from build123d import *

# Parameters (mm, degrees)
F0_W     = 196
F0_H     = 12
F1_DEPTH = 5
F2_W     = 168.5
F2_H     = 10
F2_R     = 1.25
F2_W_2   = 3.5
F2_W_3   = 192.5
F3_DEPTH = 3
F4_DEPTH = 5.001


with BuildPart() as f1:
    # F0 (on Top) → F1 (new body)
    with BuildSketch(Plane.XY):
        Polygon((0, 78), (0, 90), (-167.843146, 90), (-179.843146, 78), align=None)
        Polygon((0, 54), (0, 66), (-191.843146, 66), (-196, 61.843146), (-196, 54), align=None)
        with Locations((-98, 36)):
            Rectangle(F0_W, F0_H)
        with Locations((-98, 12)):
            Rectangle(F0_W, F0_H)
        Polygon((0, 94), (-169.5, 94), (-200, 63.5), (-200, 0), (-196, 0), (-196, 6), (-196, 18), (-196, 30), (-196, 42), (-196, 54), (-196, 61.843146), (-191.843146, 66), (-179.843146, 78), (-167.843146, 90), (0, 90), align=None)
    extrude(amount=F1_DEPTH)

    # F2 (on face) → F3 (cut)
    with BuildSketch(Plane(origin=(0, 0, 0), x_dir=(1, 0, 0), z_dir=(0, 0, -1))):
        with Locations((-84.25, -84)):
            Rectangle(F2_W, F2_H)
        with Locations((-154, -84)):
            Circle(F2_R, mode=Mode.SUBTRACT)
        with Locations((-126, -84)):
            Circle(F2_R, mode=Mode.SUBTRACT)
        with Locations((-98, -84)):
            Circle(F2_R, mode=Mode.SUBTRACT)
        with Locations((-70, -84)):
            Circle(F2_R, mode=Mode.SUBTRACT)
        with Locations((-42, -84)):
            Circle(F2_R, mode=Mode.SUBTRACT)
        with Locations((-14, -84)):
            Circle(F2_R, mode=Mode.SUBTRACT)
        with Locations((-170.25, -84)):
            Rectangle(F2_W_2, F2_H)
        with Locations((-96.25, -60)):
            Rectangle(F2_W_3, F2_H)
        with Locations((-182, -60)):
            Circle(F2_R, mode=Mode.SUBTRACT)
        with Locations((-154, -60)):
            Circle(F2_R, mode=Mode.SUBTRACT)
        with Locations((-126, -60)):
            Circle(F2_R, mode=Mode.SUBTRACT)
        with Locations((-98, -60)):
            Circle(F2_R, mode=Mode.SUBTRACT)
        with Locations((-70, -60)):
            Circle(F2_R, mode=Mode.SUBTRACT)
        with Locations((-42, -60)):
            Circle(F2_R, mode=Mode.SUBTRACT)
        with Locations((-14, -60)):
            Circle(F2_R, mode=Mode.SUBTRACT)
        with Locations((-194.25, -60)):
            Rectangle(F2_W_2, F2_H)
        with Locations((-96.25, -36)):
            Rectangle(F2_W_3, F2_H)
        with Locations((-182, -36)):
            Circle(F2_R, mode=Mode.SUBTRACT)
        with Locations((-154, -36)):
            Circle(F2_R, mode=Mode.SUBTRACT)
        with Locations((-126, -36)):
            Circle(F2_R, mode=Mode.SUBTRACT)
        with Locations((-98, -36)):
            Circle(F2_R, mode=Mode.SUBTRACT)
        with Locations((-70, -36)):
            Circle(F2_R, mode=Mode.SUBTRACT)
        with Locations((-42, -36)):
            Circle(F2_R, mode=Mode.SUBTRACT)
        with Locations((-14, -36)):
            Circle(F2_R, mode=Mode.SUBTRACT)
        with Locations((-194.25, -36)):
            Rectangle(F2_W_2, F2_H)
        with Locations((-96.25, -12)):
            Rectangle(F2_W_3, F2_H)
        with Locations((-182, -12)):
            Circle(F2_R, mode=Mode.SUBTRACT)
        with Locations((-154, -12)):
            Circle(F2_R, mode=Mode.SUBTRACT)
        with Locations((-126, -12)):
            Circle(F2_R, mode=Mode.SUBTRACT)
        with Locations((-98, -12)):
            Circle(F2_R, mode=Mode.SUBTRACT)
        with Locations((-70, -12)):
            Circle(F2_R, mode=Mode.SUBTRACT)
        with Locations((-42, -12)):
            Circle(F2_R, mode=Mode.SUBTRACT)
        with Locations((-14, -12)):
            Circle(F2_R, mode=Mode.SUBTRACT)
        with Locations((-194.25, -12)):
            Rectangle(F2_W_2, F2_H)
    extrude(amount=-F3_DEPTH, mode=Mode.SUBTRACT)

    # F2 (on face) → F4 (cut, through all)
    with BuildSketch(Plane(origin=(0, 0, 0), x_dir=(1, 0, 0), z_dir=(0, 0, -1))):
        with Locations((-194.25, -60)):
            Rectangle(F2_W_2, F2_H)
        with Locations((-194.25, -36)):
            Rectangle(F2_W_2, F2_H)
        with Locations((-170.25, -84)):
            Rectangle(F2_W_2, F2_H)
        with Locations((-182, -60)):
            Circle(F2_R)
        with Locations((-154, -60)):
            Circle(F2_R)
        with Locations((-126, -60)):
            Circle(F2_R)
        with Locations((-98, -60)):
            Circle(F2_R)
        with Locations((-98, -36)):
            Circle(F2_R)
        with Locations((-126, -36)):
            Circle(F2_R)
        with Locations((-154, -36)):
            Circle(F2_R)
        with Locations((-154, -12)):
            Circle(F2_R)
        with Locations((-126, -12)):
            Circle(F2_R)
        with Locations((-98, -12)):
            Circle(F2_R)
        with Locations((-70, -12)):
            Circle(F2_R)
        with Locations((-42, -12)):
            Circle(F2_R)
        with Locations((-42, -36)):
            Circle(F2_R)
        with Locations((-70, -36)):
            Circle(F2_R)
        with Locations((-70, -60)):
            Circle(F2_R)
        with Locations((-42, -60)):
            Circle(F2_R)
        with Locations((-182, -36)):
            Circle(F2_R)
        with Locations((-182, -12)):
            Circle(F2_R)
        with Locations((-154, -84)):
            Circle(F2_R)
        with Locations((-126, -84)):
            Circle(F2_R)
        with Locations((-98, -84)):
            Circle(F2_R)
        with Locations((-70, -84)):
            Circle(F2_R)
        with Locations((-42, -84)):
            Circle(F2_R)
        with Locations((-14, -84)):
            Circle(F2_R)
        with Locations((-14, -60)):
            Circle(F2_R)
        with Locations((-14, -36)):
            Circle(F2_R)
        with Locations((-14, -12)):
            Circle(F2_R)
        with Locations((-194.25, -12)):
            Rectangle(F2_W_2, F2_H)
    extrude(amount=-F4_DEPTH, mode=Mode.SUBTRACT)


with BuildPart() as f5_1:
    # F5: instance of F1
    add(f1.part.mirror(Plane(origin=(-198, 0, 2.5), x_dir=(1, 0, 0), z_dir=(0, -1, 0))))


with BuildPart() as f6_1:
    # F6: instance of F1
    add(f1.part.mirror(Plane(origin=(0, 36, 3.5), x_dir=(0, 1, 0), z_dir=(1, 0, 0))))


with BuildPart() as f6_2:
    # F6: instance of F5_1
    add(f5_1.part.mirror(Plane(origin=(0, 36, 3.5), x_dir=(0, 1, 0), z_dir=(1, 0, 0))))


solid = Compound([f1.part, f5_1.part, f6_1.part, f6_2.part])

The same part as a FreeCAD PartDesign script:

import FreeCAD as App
import Part
import Sketcher

V = App.Vector
Q = App.Units.Quantity

doc = App.newDocument("Part")
body = doc.addObject("PartDesign::Body", "Body")

sketch1 = body.newObject("Sketcher::SketchObject", "Sketch")
sketch1.AttachmentSupport = (doc.getObject("XY_Plane"), [""])
sketch1.MapMode = "FlatFace"
sketch1.addGeometry(Part.LineSegment(V(0, 78, 0), V(0, 94, 0)), False)
sketch1.addGeometry(Part.LineSegment(V(0, 94, 0), V(-169.5, 94, 0)), False)
sketch1.addGeometry(Part.LineSegment(V(-169.5, 94, 0), V(-200, 63.5, 0)), False)
sketch1.addGeometry(Part.LineSegment(V(-200, 63.5, 0), V(-200, 0, 0)), False)
sketch1.addGeometry(Part.LineSegment(V(-200, 0, 0), V(-196, 0, 0)), False)
sketch1.addGeometry(Part.LineSegment(V(-196, 0, 0), V(-196, 6, 0)), False)
sketch1.addGeometry(Part.LineSegment(V(-196, 6, 0), V(0, 6, 0)), False)
sketch1.addGeometry(Part.LineSegment(V(0, 6, 0), V(0, 18, 0)), False)
sketch1.addGeometry(Part.LineSegment(V(0, 18, 0), V(-196, 18, 0)), False)
sketch1.addGeometry(Part.LineSegment(V(-196, 18, 0), V(-196, 30, 0)), False)
sketch1.addGeometry(Part.LineSegment(V(-196, 30, 0), V(0, 30, 0)), False)
sketch1.addGeometry(Part.LineSegment(V(0, 30, 0), V(0, 42, 0)), False)
sketch1.addGeometry(Part.LineSegment(V(0, 42, 0), V(-196, 42, 0)), False)
sketch1.addGeometry(Part.LineSegment(V(-196, 42, 0), V(-196, 54, 0)), False)
sketch1.addGeometry(Part.LineSegment(V(-196, 54, 0), V(0, 54, 0)), False)
sketch1.addGeometry(Part.LineSegment(V(0, 54, 0), V(0, 66, 0)), False)
sketch1.addGeometry(Part.LineSegment(V(0, 66, 0), V(-191.8, 66, 0)), False)
sketch1.addGeometry(Part.LineSegment(V(-191.8, 66, 0), V(-179.8, 78, 0)), False)
sketch1.addGeometry(Part.LineSegment(V(-179.8, 78, 0), V(0, 78, 0)), False)
sketch1.addConstraint(Sketcher.Constraint("Coincident", 0, 2, 1, 1))
sketch1.addConstraint(Sketcher.Constraint("Coincident", 1, 2, 2, 1))
sketch1.addConstraint(Sketcher.Constraint("Coincident", 2, 2, 3, 1))
sketch1.addConstraint(Sketcher.Constraint("Coincident", 3, 2, 4, 1))
sketch1.addConstraint(Sketcher.Constraint("Coincident", 4, 2, 5, 1))
sketch1.addConstraint(Sketcher.Constraint("Coincident", 5, 2, 6, 1))
sketch1.addConstraint(Sketcher.Constraint("Coincident", 6, 2, 7, 1))
sketch1.addConstraint(Sketcher.Constraint("Coincident", 7, 2, 8, 1))
sketch1.addConstraint(Sketcher.Constraint("Coincident", 8, 2, 9, 1))
sketch1.addConstraint(Sketcher.Constraint("Coincident", 9, 2, 10, 1))
sketch1.addConstraint(Sketcher.Constraint("Coincident", 10, 2, 11, 1))
sketch1.addConstraint(Sketcher.Constraint("Coincident", 11, 2, 12, 1))
sketch1.addConstraint(Sketcher.Constraint("Coincident", 12, 2, 13, 1))
sketch1.addConstraint(Sketcher.Constraint("Coincident", 13, 2, 14, 1))
sketch1.addConstraint(Sketcher.Constraint("Coincident", 14, 2, 15, 1))
sketch1.addConstraint(Sketcher.Constraint("Coincident", 15, 2, 16, 1))
sketch1.addConstraint(Sketcher.Constraint("Coincident", 16, 2, 17, 1))
sketch1.addConstraint(Sketcher.Constraint("Coincident", 17, 2, 18, 1))
sketch1.addConstraint(Sketcher.Constraint("Coincident", 18, 2, 0, 1))
sketch1.addConstraint(Sketcher.Constraint("Vertical", 0))
sketch1.addConstraint(Sketcher.Constraint("Horizontal", 1))
sketch1.addConstraint(Sketcher.Constraint("Vertical", 3))
sketch1.addConstraint(Sketcher.Constraint("Horizontal", 4))
sketch1.addConstraint(Sketcher.Constraint("Vertical", 5))
sketch1.addConstraint(Sketcher.Constraint("Horizontal", 6))
sketch1.addConstraint(Sketcher.Constraint("Vertical", 7))
sketch1.addConstraint(Sketcher.Constraint("Horizontal", 8))
sketch1.addConstraint(Sketcher.Constraint("Vertical", 9))
sketch1.addConstraint(Sketcher.Constraint("Horizontal", 10))
sketch1.addConstraint(Sketcher.Constraint("Vertical", 11))
sketch1.addConstraint(Sketcher.Constraint("Horizontal", 12))
sketch1.addConstraint(Sketcher.Constraint("Vertical", 13))
sketch1.addConstraint(Sketcher.Constraint("Horizontal", 14))
sketch1.addConstraint(Sketcher.Constraint("Vertical", 15))
sketch1.addConstraint(Sketcher.Constraint("Horizontal", 16))
sketch1.addConstraint(Sketcher.Constraint("Horizontal", 18))
sketch1.addConstraint(Sketcher.Constraint("PointOnObject", 0, 2, -2))
sketch1.addConstraint(Sketcher.Constraint("PointOnObject", 3, 2, -1))
sketch1.addConstraint(Sketcher.Constraint("PointOnObject", 6, 2, -2))
sketch1.addConstraint(Sketcher.Constraint("PointOnObject", 10, 2, -2))
sketch1.addConstraint(Sketcher.Constraint("PointOnObject", 14, 2, -2))
sketch1.addConstraint(Sketcher.Constraint("Parallel", 2, 17))
sketch1.addConstraint(Sketcher.Constraint("Vertical", 5, 2, 8, 2))
sketch1.addConstraint(Sketcher.Constraint("Vertical", 9, 2, 12, 2))
sketch1.addConstraint(Sketcher.Constraint("Equal", 7, 9))
sketch1.addConstraint(Sketcher.Constraint("Equal", 9, 11))
sketch1.addConstraint(Sketcher.Constraint("Equal", 11, 13))
sketch1.addConstraint(Sketcher.Constraint("Equal", 13, 15))
sketch1.addConstraint(Sketcher.Constraint("DistanceX", 4, 1, 4, 2, 4.0))
sketch1.addConstraint(Sketcher.Constraint("DistanceX", 6, 1, 6, 2, 196.0))
sketch1.addConstraint(Sketcher.Constraint("DistanceY", 0, 1, 0, 2, 16.0))
sketch1.addConstraint(Sketcher.Constraint("DistanceY", 5, 1, 5, 2, 6.0))
sketch1.addConstraint(Sketcher.Constraint("DistanceY", 7, 1, 7, 2, 12.0))
sketch1.addConstraint(Sketcher.Constraint("Angle", 2, Q("-135 deg")))
sketch1.addConstraint(Sketcher.Constraint("DistanceX", 1, 2, 1, 1, 169.5))
sketch1.addConstraint(Sketcher.Constraint("DistanceY", 3, 2, 3, 1, 63.5))
sketch1.addConstraint(Sketcher.Constraint("DistanceX", 16, 2, 16, 1, 191.843146))
pad1 = body.newObject("PartDesign::Pad", "Pad")
pad1.Profile = sketch1
pad1.Length = 5

sketch2 = body.newObject("Sketcher::SketchObject", "Sketch001")
sketch2.AttachmentSupport = (doc.getObject("XY_Plane"), [""])
sketch2.MapMode = "FlatFace"
sketch2.addGeometry(Part.LineSegment(V(0, 89, 0), V(0, 79, 0)), False)
sketch2.addGeometry(Part.LineSegment(V(0, 79, 0), V(-172, 79, 0)), False)
sketch2.addGeometry(Part.LineSegment(V(-172, 79, 0), V(-172, 89, 0)), False)
sketch2.addGeometry(Part.LineSegment(V(-172, 89, 0), V(0, 89, 0)), False)
sketch2.addGeometry(Part.Circle(V(-154, 84, 0), V(0, 0, 1), 1.2), False)
sketch2.addGeometry(Part.Circle(V(-126, 84, 0), V(0, 0, 1), 1.2), False)
sketch2.addGeometry(Part.Circle(V(-98, 84, 0), V(0, 0, 1), 1.2), False)
sketch2.addGeometry(Part.Circle(V(-70, 84, 0), V(0, 0, 1), 1.2), False)
sketch2.addGeometry(Part.Circle(V(-42, 84, 0), V(0, 0, 1), 1.2), False)
sketch2.addGeometry(Part.Circle(V(-14, 84, 0), V(0, 0, 1), 1.2), False)
sketch2.addGeometry(Part.LineSegment(V(0, 65, 0), V(0, 55, 0)), False)
sketch2.addGeometry(Part.LineSegment(V(0, 55, 0), V(-196, 55, 0)), False)
sketch2.addGeometry(Part.LineSegment(V(-196, 55, 0), V(-196, 65, 0)), False)
sketch2.addGeometry(Part.LineSegment(V(-196, 65, 0), V(0, 65, 0)), False)
sketch2.addGeometry(Part.Circle(V(-182, 60, 0), V(0, 0, 1), 1.2), False)
sketch2.addGeometry(Part.Circle(V(-154, 60, 0), V(0, 0, 1), 1.2), False)
sketch2.addGeometry(Part.Circle(V(-126, 60, 0), V(0, 0, 1), 1.2), False)
sketch2.addGeometry(Part.Circle(V(-98, 60, 0), V(0, 0, 1), 1.2), False)
sketch2.addGeometry(Part.Circle(V(-70, 60, 0), V(0, 0, 1), 1.2), False)
sketch2.addGeometry(Part.Circle(V(-42, 60, 0), V(0, 0, 1), 1.2), False)
sketch2.addGeometry(Part.Circle(V(-14, 60, 0), V(0, 0, 1), 1.2), False)
sketch2.addGeometry(Part.LineSegment(V(0, 41, 0), V(0, 31, 0)), False)
sketch2.addGeometry(Part.LineSegment(V(0, 31, 0), V(-196, 31, 0)), False)
sketch2.addGeometry(Part.LineSegment(V(-196, 31, 0), V(-196, 41, 0)), False)
sketch2.addGeometry(Part.LineSegment(V(-196, 41, 0), V(0, 41, 0)), False)
sketch2.addGeometry(Part.Circle(V(-182, 36, 0), V(0, 0, 1), 1.2), False)
sketch2.addGeometry(Part.Circle(V(-154, 36, 0), V(0, 0, 1), 1.2), False)
sketch2.addGeometry(Part.Circle(V(-126, 36, 0), V(0, 0, 1), 1.2), False)
sketch2.addGeometry(Part.Circle(V(-98, 36, 0), V(0, 0, 1), 1.2), False)
sketch2.addGeometry(Part.Circle(V(-70, 36, 0), V(0, 0, 1), 1.2), False)
sketch2.addGeometry(Part.Circle(V(-42, 36, 0), V(0, 0, 1), 1.2), False)
sketch2.addGeometry(Part.Circle(V(-14, 36, 0), V(0, 0, 1), 1.2), False)
sketch2.addGeometry(Part.LineSegment(V(0, 17, 0), V(0, 7, 0)), False)
sketch2.addGeometry(Part.LineSegment(V(0, 7, 0), V(-196, 7, 0)), False)
sketch2.addGeometry(Part.LineSegment(V(-196, 7, 0), V(-196, 17, 0)), False)
sketch2.addGeometry(Part.LineSegment(V(-196, 17, 0), V(0, 17, 0)), False)
sketch2.addGeometry(Part.Circle(V(-182, 12, 0), V(0, 0, 1), 1.2), False)
sketch2.addGeometry(Part.Circle(V(-154, 12, 0), V(0, 0, 1), 1.2), False)
sketch2.addGeometry(Part.Circle(V(-126, 12, 0), V(0, 0, 1), 1.2), False)
sketch2.addGeometry(Part.Circle(V(-98, 12, 0), V(0, 0, 1), 1.2), False)
sketch2.addGeometry(Part.Circle(V(-70, 12, 0), V(0, 0, 1), 1.2), False)
sketch2.addGeometry(Part.Circle(V(-42, 12, 0), V(0, 0, 1), 1.2), False)
sketch2.addGeometry(Part.Circle(V(-14, 12, 0), V(0, 0, 1), 1.2), False)
sketch2.addConstraint(Sketcher.Constraint("Coincident", 0, 2, 1, 1))
sketch2.addConstraint(Sketcher.Constraint("Coincident", 1, 2, 2, 1))
sketch2.addConstraint(Sketcher.Constraint("Coincident", 2, 2, 3, 1))
sketch2.addConstraint(Sketcher.Constraint("Coincident", 3, 2, 0, 1))
sketch2.addConstraint(Sketcher.Constraint("Coincident", 10, 2, 11, 1))
sketch2.addConstraint(Sketcher.Constraint("Coincident", 11, 2, 12, 1))
sketch2.addConstraint(Sketcher.Constraint("Coincident", 12, 2, 13, 1))
sketch2.addConstraint(Sketcher.Constraint("Coincident", 13, 2, 10, 1))
sketch2.addConstraint(Sketcher.Constraint("Coincident", 21, 2, 22, 1))
sketch2.addConstraint(Sketcher.Constraint("Coincident", 22, 2, 23, 1))
sketch2.addConstraint(Sketcher.Constraint("Coincident", 23, 2, 24, 1))
sketch2.addConstraint(Sketcher.Constraint("Coincident", 24, 2, 21, 1))
sketch2.addConstraint(Sketcher.Constraint("Coincident", 32, 2, 33, 1))
sketch2.addConstraint(Sketcher.Constraint("Coincident", 33, 2, 34, 1))
sketch2.addConstraint(Sketcher.Constraint("Coincident", 34, 2, 35, 1))
sketch2.addConstraint(Sketcher.Constraint("Coincident", 35, 2, 32, 1))
sketch2.addConstraint(Sketcher.Constraint("Vertical", 0))
sketch2.addConstraint(Sketcher.Constraint("Horizontal", 1))
sketch2.addConstraint(Sketcher.Constraint("Vertical", 2))
sketch2.addConstraint(Sketcher.Constraint("Horizontal", 3))
sketch2.addConstraint(Sketcher.Constraint("Vertical", 10))
sketch2.addConstraint(Sketcher.Constraint("Horizontal", 11))
sketch2.addConstraint(Sketcher.Constraint("Vertical", 12))
sketch2.addConstraint(Sketcher.Constraint("Horizontal", 13))
sketch2.addConstraint(Sketcher.Constraint("Vertical", 21))
sketch2.addConstraint(Sketcher.Constraint("Horizontal", 22))
sketch2.addConstraint(Sketcher.Constraint("Vertical", 23))
sketch2.addConstraint(Sketcher.Constraint("Horizontal", 24))
sketch2.addConstraint(Sketcher.Constraint("Vertical", 32))
sketch2.addConstraint(Sketcher.Constraint("Horizontal", 33))
sketch2.addConstraint(Sketcher.Constraint("Vertical", 34))
sketch2.addConstraint(Sketcher.Constraint("Horizontal", 35))
sketch2.addConstraint(Sketcher.Constraint("Equal", 4, 5))
sketch2.addConstraint(Sketcher.Constraint("Equal", 5, 6))
sketch2.addConstraint(Sketcher.Constraint("Equal", 6, 7))
sketch2.addConstraint(Sketcher.Constraint("Equal", 7, 8))
sketch2.addConstraint(Sketcher.Constraint("Equal", 8, 9))
sketch2.addConstraint(Sketcher.Constraint("Equal", 9, 14))
sketch2.addConstraint(Sketcher.Constraint("Equal", 14, 15))
sketch2.addConstraint(Sketcher.Constraint("Equal", 15, 16))
sketch2.addConstraint(Sketcher.Constraint("Equal", 16, 17))
sketch2.addConstraint(Sketcher.Constraint("Equal", 17, 18))
sketch2.addConstraint(Sketcher.Constraint("Equal", 18, 19))
sketch2.addConstraint(Sketcher.Constraint("Equal", 19, 20))
sketch2.addConstraint(Sketcher.Constraint("Equal", 20, 25))
sketch2.addConstraint(Sketcher.Constraint("Equal", 25, 26))
sketch2.addConstraint(Sketcher.Constraint("Equal", 26, 27))
sketch2.addConstraint(Sketcher.Constraint("Equal", 27, 28))
sketch2.addConstraint(Sketcher.Constraint("Equal", 28, 29))
sketch2.addConstraint(Sketcher.Constraint("Equal", 29, 30))
sketch2.addConstraint(Sketcher.Constraint("Equal", 30, 31))
sketch2.addConstraint(Sketcher.Constraint("Equal", 31, 36))
sketch2.addConstraint(Sketcher.Constraint("Equal", 36, 37))
sketch2.addConstraint(Sketcher.Constraint("Equal", 37, 38))
sketch2.addConstraint(Sketcher.Constraint("Equal", 38, 39))
sketch2.addConstraint(Sketcher.Constraint("Equal", 39, 40))
sketch2.addConstraint(Sketcher.Constraint("Equal", 40, 41))
sketch2.addConstraint(Sketcher.Constraint("Equal", 41, 42))
sketch2.addConstraint(Sketcher.Constraint("PointOnObject", 0, 2, -2))
sketch2.addConstraint(Sketcher.Constraint("PointOnObject", 10, 2, -2))
sketch2.addConstraint(Sketcher.Constraint("PointOnObject", 21, 2, -2))
sketch2.addConstraint(Sketcher.Constraint("PointOnObject", 32, 2, -2))
sketch2.addConstraint(Sketcher.Constraint("Horizontal", 4, 3, 5, 3))
sketch2.addConstraint(Sketcher.Constraint("Horizontal", 5, 3, 6, 3))
sketch2.addConstraint(Sketcher.Constraint("Horizontal", 6, 3, 7, 3))
sketch2.addConstraint(Sketcher.Constraint("Horizontal", 7, 3, 8, 3))
sketch2.addConstraint(Sketcher.Constraint("Horizontal", 8, 3, 9, 3))
sketch2.addConstraint(Sketcher.Constraint("Horizontal", 14, 3, 15, 3))
sketch2.addConstraint(Sketcher.Constraint("Horizontal", 15, 3, 16, 3))
sketch2.addConstraint(Sketcher.Constraint("Horizontal", 16, 3, 17, 3))
sketch2.addConstraint(Sketcher.Constraint("Horizontal", 17, 3, 18, 3))
sketch2.addConstraint(Sketcher.Constraint("Horizontal", 18, 3, 19, 3))
sketch2.addConstraint(Sketcher.Constraint("Horizontal", 19, 3, 20, 3))
sketch2.addConstraint(Sketcher.Constraint("Horizontal", 25, 3, 26, 3))
sketch2.addConstraint(Sketcher.Constraint("Horizontal", 26, 3, 27, 3))
sketch2.addConstraint(Sketcher.Constraint("Horizontal", 27, 3, 28, 3))
sketch2.addConstraint(Sketcher.Constraint("Horizontal", 28, 3, 29, 3))
sketch2.addConstraint(Sketcher.Constraint("Horizontal", 29, 3, 30, 3))
sketch2.addConstraint(Sketcher.Constraint("Horizontal", 30, 3, 31, 3))
sketch2.addConstraint(Sketcher.Constraint("Horizontal", 36, 3, 37, 3))
sketch2.addConstraint(Sketcher.Constraint("Horizontal", 37, 3, 38, 3))
sketch2.addConstraint(Sketcher.Constraint("Horizontal", 38, 3, 39, 3))
sketch2.addConstraint(Sketcher.Constraint("Horizontal", 39, 3, 40, 3))
sketch2.addConstraint(Sketcher.Constraint("Horizontal", 40, 3, 41, 3))
sketch2.addConstraint(Sketcher.Constraint("Horizontal", 41, 3, 42, 3))
sketch2.addConstraint(Sketcher.Constraint("Vertical", 4, 3, 15, 3))
sketch2.addConstraint(Sketcher.Constraint("Vertical", 5, 3, 16, 3))
sketch2.addConstraint(Sketcher.Constraint("Vertical", 6, 3, 17, 3))
sketch2.addConstraint(Sketcher.Constraint("Vertical", 7, 3, 18, 3))
sketch2.addConstraint(Sketcher.Constraint("Vertical", 8, 3, 19, 3))
sketch2.addConstraint(Sketcher.Constraint("Vertical", 9, 3, 20, 3))
sketch2.addConstraint(Sketcher.Constraint("Vertical", 14, 3, 25, 3))
sketch2.addConstraint(Sketcher.Constraint("Vertical", 15, 3, 26, 3))
sketch2.addConstraint(Sketcher.Constraint("Vertical", 16, 3, 27, 3))
sketch2.addConstraint(Sketcher.Constraint("Vertical", 17, 3, 28, 3))
sketch2.addConstraint(Sketcher.Constraint("Vertical", 18, 3, 29, 3))
sketch2.addConstraint(Sketcher.Constraint("Vertical", 19, 3, 30, 3))
sketch2.addConstraint(Sketcher.Constraint("Vertical", 20, 3, 31, 3))
sketch2.addConstraint(Sketcher.Constraint("Vertical", 25, 3, 36, 3))
sketch2.addConstraint(Sketcher.Constraint("Vertical", 26, 3, 37, 3))
sketch2.addConstraint(Sketcher.Constraint("Vertical", 27, 3, 38, 3))
sketch2.addConstraint(Sketcher.Constraint("Vertical", 28, 3, 39, 3))
sketch2.addConstraint(Sketcher.Constraint("Vertical", 29, 3, 40, 3))
sketch2.addConstraint(Sketcher.Constraint("Vertical", 30, 3, 41, 3))
sketch2.addConstraint(Sketcher.Constraint("Vertical", 31, 3, 42, 3))
sketch2.addConstraint(Sketcher.Constraint("Vertical", 12, 2, 22, 2))
sketch2.addConstraint(Sketcher.Constraint("Vertical", 23, 2, 33, 2))
sketch2.addConstraint(Sketcher.Constraint("Equal", 2, 10))
sketch2.addConstraint(Sketcher.Constraint("Equal", 12, 21))
sketch2.addConstraint(Sketcher.Constraint("Equal", 23, 32))
sketch2.addConstraint(Sketcher.Constraint("Diameter", 4, 2.5))
sketch2.addConstraint(Sketcher.Constraint("DistanceX", 1, 2, 1, 1, 172.0))
sketch2.addConstraint(Sketcher.Constraint("DistanceX", 11, 2, 11, 1, 196.0))
sketch2.addConstraint(Sketcher.Constraint("DistanceY", 0, 2, 0, 1, 10.0))
sketch2.addConstraint(Sketcher.Constraint("DistanceX", 4, 3, -1, 1, 154.0))
sketch2.addConstraint(Sketcher.Constraint("DistanceY", -1, 1, 4, 3, 84.0))
sketch2.addConstraint(Sketcher.Constraint("DistanceX", 5, 3, -1, 1, 126.0))
sketch2.addConstraint(Sketcher.Constraint("DistanceX", 6, 3, -1, 1, 98.0))
sketch2.addConstraint(Sketcher.Constraint("DistanceX", 7, 3, -1, 1, 70.0))
sketch2.addConstraint(Sketcher.Constraint("DistanceX", 8, 3, -1, 1, 42.0))
sketch2.addConstraint(Sketcher.Constraint("DistanceX", 9, 3, -1, 1, 14.0))
sketch2.addConstraint(Sketcher.Constraint("DistanceX", 14, 3, -1, 1, 182.0))
sketch2.addConstraint(Sketcher.Constraint("DistanceY", -1, 1, 14, 3, 60.0))
sketch2.addConstraint(Sketcher.Constraint("DistanceY", -1, 1, 25, 3, 36.0))
sketch2.addConstraint(Sketcher.Constraint("DistanceY", -1, 1, 36, 3, 12.0))
sketch2.addConstraint(Sketcher.Constraint("DistanceY", -1, 1, 0, 2, 79.0))
sketch2.addConstraint(Sketcher.Constraint("DistanceY", -1, 1, 10, 2, 55.0))
sketch2.addConstraint(Sketcher.Constraint("DistanceY", -1, 1, 21, 2, 31.0))
sketch2.addConstraint(Sketcher.Constraint("DistanceY", -1, 1, 32, 2, 7.0))
pocket1 = body.newObject("PartDesign::Pocket", "Pocket")
pocket1.Profile = sketch2
pocket1.Length = 3
pocket1.Reversed = True

sketch3 = body.newObject("Sketcher::SketchObject", "Sketch002")
sketch3.AttachmentSupport = (doc.getObject("XY_Plane"), [""])
sketch3.MapMode = "FlatFace"
sketch3.addGeometry(Part.LineSegment(V(-196, 55, 0), V(-196, 65, 0)), False)
sketch3.addGeometry(Part.LineSegment(V(-196, 65, 0), V(-192.5, 65, 0)), False)
sketch3.addGeometry(Part.LineSegment(V(-192.5, 65, 0), V(-192.5, 55, 0)), False)
sketch3.addGeometry(Part.LineSegment(V(-192.5, 55, 0), V(-196, 55, 0)), False)
sketch3.addGeometry(Part.LineSegment(V(-196, 31, 0), V(-196, 41, 0)), False)
sketch3.addGeometry(Part.LineSegment(V(-196, 41, 0), V(-192.5, 41, 0)), False)
sketch3.addGeometry(Part.LineSegment(V(-192.5, 41, 0), V(-192.5, 31, 0)), False)
sketch3.addGeometry(Part.LineSegment(V(-192.5, 31, 0), V(-196, 31, 0)), False)
sketch3.addGeometry(Part.LineSegment(V(-172, 79, 0), V(-172, 89, 0)), False)
sketch3.addGeometry(Part.LineSegment(V(-172, 89, 0), V(-168.5, 89, 0)), False)
sketch3.addGeometry(Part.LineSegment(V(-168.5, 89, 0), V(-168.5, 79, 0)), False)
sketch3.addGeometry(Part.LineSegment(V(-168.5, 79, 0), V(-172, 79, 0)), False)
sketch3.addGeometry(Part.Circle(V(-182, 60, 0), V(0, 0, 1), 1.2), False)
sketch3.addGeometry(Part.Circle(V(-154, 60, 0), V(0, 0, 1), 1.2), False)
sketch3.addGeometry(Part.Circle(V(-126, 60, 0), V(0, 0, 1), 1.2), False)
sketch3.addGeometry(Part.Circle(V(-98, 60, 0), V(0, 0, 1), 1.2), False)
sketch3.addGeometry(Part.Circle(V(-98, 36, 0), V(0, 0, 1), 1.2), False)
sketch3.addGeometry(Part.Circle(V(-126, 36, 0), V(0, 0, 1), 1.2), False)
sketch3.addGeometry(Part.Circle(V(-154, 36, 0), V(0, 0, 1), 1.2), False)
sketch3.addGeometry(Part.Circle(V(-154, 12, 0), V(0, 0, 1), 1.2), False)
sketch3.addGeometry(Part.Circle(V(-126, 12, 0), V(0, 0, 1), 1.2), False)
sketch3.addGeometry(Part.Circle(V(-98, 12, 0), V(0, 0, 1), 1.2), False)
sketch3.addGeometry(Part.Circle(V(-70, 12, 0), V(0, 0, 1), 1.2), False)
sketch3.addGeometry(Part.Circle(V(-42, 12, 0), V(0, 0, 1), 1.2), False)
sketch3.addGeometry(Part.Circle(V(-42, 36, 0), V(0, 0, 1), 1.2), False)
sketch3.addGeometry(Part.Circle(V(-70, 36, 0), V(0, 0, 1), 1.2), False)
sketch3.addGeometry(Part.Circle(V(-70, 60, 0), V(0, 0, 1), 1.2), False)
sketch3.addGeometry(Part.Circle(V(-42, 60, 0), V(0, 0, 1), 1.2), False)
sketch3.addGeometry(Part.Circle(V(-182, 36, 0), V(0, 0, 1), 1.2), False)
sketch3.addGeometry(Part.Circle(V(-182, 12, 0), V(0, 0, 1), 1.2), False)
sketch3.addGeometry(Part.Circle(V(-154, 84, 0), V(0, 0, 1), 1.2), False)
sketch3.addGeometry(Part.Circle(V(-126, 84, 0), V(0, 0, 1), 1.2), False)
sketch3.addGeometry(Part.Circle(V(-98, 84, 0), V(0, 0, 1), 1.2), False)
sketch3.addGeometry(Part.Circle(V(-70, 84, 0), V(0, 0, 1), 1.2), False)
sketch3.addGeometry(Part.Circle(V(-42, 84, 0), V(0, 0, 1), 1.2), False)
sketch3.addGeometry(Part.Circle(V(-14, 84, 0), V(0, 0, 1), 1.2), False)
sketch3.addGeometry(Part.Circle(V(-14, 60, 0), V(0, 0, 1), 1.2), False)
sketch3.addGeometry(Part.Circle(V(-14, 36, 0), V(0, 0, 1), 1.2), False)
sketch3.addGeometry(Part.Circle(V(-14, 12, 0), V(0, 0, 1), 1.2), False)
sketch3.addGeometry(Part.LineSegment(V(-196, 7, 0), V(-196, 17, 0)), False)
sketch3.addGeometry(Part.LineSegment(V(-196, 17, 0), V(-192.5, 17, 0)), False)
sketch3.addGeometry(Part.LineSegment(V(-192.5, 17, 0), V(-192.5, 7, 0)), False)
sketch3.addGeometry(Part.LineSegment(V(-192.5, 7, 0), V(-196, 7, 0)), False)
sketch3.addConstraint(Sketcher.Constraint("Coincident", 0, 2, 1, 1))
sketch3.addConstraint(Sketcher.Constraint("Coincident", 1, 2, 2, 1))
sketch3.addConstraint(Sketcher.Constraint("Coincident", 2, 2, 3, 1))
sketch3.addConstraint(Sketcher.Constraint("Coincident", 3, 2, 0, 1))
sketch3.addConstraint(Sketcher.Constraint("Coincident", 4, 2, 5, 1))
sketch3.addConstraint(Sketcher.Constraint("Coincident", 5, 2, 6, 1))
sketch3.addConstraint(Sketcher.Constraint("Coincident", 6, 2, 7, 1))
sketch3.addConstraint(Sketcher.Constraint("Coincident", 7, 2, 4, 1))
sketch3.addConstraint(Sketcher.Constraint("Coincident", 8, 2, 9, 1))
sketch3.addConstraint(Sketcher.Constraint("Coincident", 9, 2, 10, 1))
sketch3.addConstraint(Sketcher.Constraint("Coincident", 10, 2, 11, 1))
sketch3.addConstraint(Sketcher.Constraint("Coincident", 11, 2, 8, 1))
sketch3.addConstraint(Sketcher.Constraint("Coincident", 39, 2, 40, 1))
sketch3.addConstraint(Sketcher.Constraint("Coincident", 40, 2, 41, 1))
sketch3.addConstraint(Sketcher.Constraint("Coincident", 41, 2, 42, 1))
sketch3.addConstraint(Sketcher.Constraint("Coincident", 42, 2, 39, 1))
sketch3.addConstraint(Sketcher.Constraint("Vertical", 0))
sketch3.addConstraint(Sketcher.Constraint("Horizontal", 1))
sketch3.addConstraint(Sketcher.Constraint("Vertical", 2))
sketch3.addConstraint(Sketcher.Constraint("Horizontal", 3))
sketch3.addConstraint(Sketcher.Constraint("Vertical", 4))
sketch3.addConstraint(Sketcher.Constraint("Horizontal", 5))
sketch3.addConstraint(Sketcher.Constraint("Vertical", 6))
sketch3.addConstraint(Sketcher.Constraint("Horizontal", 7))
sketch3.addConstraint(Sketcher.Constraint("Vertical", 8))
sketch3.addConstraint(Sketcher.Constraint("Horizontal", 9))
sketch3.addConstraint(Sketcher.Constraint("Vertical", 10))
sketch3.addConstraint(Sketcher.Constraint("Horizontal", 11))
sketch3.addConstraint(Sketcher.Constraint("Vertical", 39))
sketch3.addConstraint(Sketcher.Constraint("Horizontal", 40))
sketch3.addConstraint(Sketcher.Constraint("Vertical", 41))
sketch3.addConstraint(Sketcher.Constraint("Horizontal", 42))
sketch3.addConstraint(Sketcher.Constraint("Equal", 12, 13))
sketch3.addConstraint(Sketcher.Constraint("Equal", 13, 14))
sketch3.addConstraint(Sketcher.Constraint("Equal", 14, 15))
sketch3.addConstraint(Sketcher.Constraint("Equal", 15, 16))
sketch3.addConstraint(Sketcher.Constraint("Equal", 16, 17))
sketch3.addConstraint(Sketcher.Constraint("Equal", 17, 18))
sketch3.addConstraint(Sketcher.Constraint("Equal", 18, 19))
sketch3.addConstraint(Sketcher.Constraint("Equal", 19, 20))
sketch3.addConstraint(Sketcher.Constraint("Equal", 20, 21))
sketch3.addConstraint(Sketcher.Constraint("Equal", 21, 22))
sketch3.addConstraint(Sketcher.Constraint("Equal", 22, 23))
sketch3.addConstraint(Sketcher.Constraint("Equal", 23, 24))
sketch3.addConstraint(Sketcher.Constraint("Equal", 24, 25))
sketch3.addConstraint(Sketcher.Constraint("Equal", 25, 26))
sketch3.addConstraint(Sketcher.Constraint("Equal", 26, 27))
sketch3.addConstraint(Sketcher.Constraint("Equal", 27, 28))
sketch3.addConstraint(Sketcher.Constraint("Equal", 28, 29))
sketch3.addConstraint(Sketcher.Constraint("Equal", 29, 30))
sketch3.addConstraint(Sketcher.Constraint("Equal", 30, 31))
sketch3.addConstraint(Sketcher.Constraint("Equal", 31, 32))
sketch3.addConstraint(Sketcher.Constraint("Equal", 32, 33))
sketch3.addConstraint(Sketcher.Constraint("Equal", 33, 34))
sketch3.addConstraint(Sketcher.Constraint("Equal", 34, 35))
sketch3.addConstraint(Sketcher.Constraint("Equal", 35, 36))
sketch3.addConstraint(Sketcher.Constraint("Equal", 36, 37))
sketch3.addConstraint(Sketcher.Constraint("Equal", 37, 38))
sketch3.addConstraint(Sketcher.Constraint("Horizontal", 12, 3, 13, 3))
sketch3.addConstraint(Sketcher.Constraint("Horizontal", 13, 3, 14, 3))
sketch3.addConstraint(Sketcher.Constraint("Horizontal", 14, 3, 15, 3))
sketch3.addConstraint(Sketcher.Constraint("Horizontal", 16, 3, 17, 3))
sketch3.addConstraint(Sketcher.Constraint("Horizontal", 17, 3, 18, 3))
sketch3.addConstraint(Sketcher.Constraint("Horizontal", 19, 3, 20, 3))
sketch3.addConstraint(Sketcher.Constraint("Horizontal", 20, 3, 21, 3))
sketch3.addConstraint(Sketcher.Constraint("Horizontal", 21, 3, 22, 3))
sketch3.addConstraint(Sketcher.Constraint("Horizontal", 22, 3, 23, 3))
sketch3.addConstraint(Sketcher.Constraint("Horizontal", 18, 3, 24, 3))
sketch3.addConstraint(Sketcher.Constraint("Horizontal", 24, 3, 25, 3))
sketch3.addConstraint(Sketcher.Constraint("Horizontal", 15, 3, 26, 3))
sketch3.addConstraint(Sketcher.Constraint("Horizontal", 26, 3, 27, 3))
sketch3.addConstraint(Sketcher.Constraint("Horizontal", 25, 3, 28, 3))
sketch3.addConstraint(Sketcher.Constraint("Horizontal", 23, 3, 29, 3))
sketch3.addConstraint(Sketcher.Constraint("Horizontal", 30, 3, 31, 3))
sketch3.addConstraint(Sketcher.Constraint("Horizontal", 31, 3, 32, 3))
sketch3.addConstraint(Sketcher.Constraint("Horizontal", 32, 3, 33, 3))
sketch3.addConstraint(Sketcher.Constraint("Horizontal", 33, 3, 34, 3))
sketch3.addConstraint(Sketcher.Constraint("Horizontal", 34, 3, 35, 3))
sketch3.addConstraint(Sketcher.Constraint("Horizontal", 27, 3, 36, 3))
sketch3.addConstraint(Sketcher.Constraint("Horizontal", 28, 3, 37, 3))
sketch3.addConstraint(Sketcher.Constraint("Horizontal", 29, 3, 38, 3))
sketch3.addConstraint(Sketcher.Constraint("Vertical", 15, 3, 16, 3))
sketch3.addConstraint(Sketcher.Constraint("Vertical", 14, 3, 17, 3))
sketch3.addConstraint(Sketcher.Constraint("Vertical", 13, 3, 18, 3))
sketch3.addConstraint(Sketcher.Constraint("Vertical", 18, 3, 19, 3))
sketch3.addConstraint(Sketcher.Constraint("Vertical", 17, 3, 20, 3))
sketch3.addConstraint(Sketcher.Constraint("Vertical", 16, 3, 21, 3))
sketch3.addConstraint(Sketcher.Constraint("Vertical", 23, 3, 24, 3))
sketch3.addConstraint(Sketcher.Constraint("Vertical", 22, 3, 25, 3))
sketch3.addConstraint(Sketcher.Constraint("Vertical", 25, 3, 26, 3))
sketch3.addConstraint(Sketcher.Constraint("Vertical", 24, 3, 27, 3))
sketch3.addConstraint(Sketcher.Constraint("Vertical", 12, 3, 28, 3))
sketch3.addConstraint(Sketcher.Constraint("Vertical", 28, 3, 29, 3))
sketch3.addConstraint(Sketcher.Constraint("Vertical", 19, 3, 30, 3))
sketch3.addConstraint(Sketcher.Constraint("Vertical", 20, 3, 31, 3))
sketch3.addConstraint(Sketcher.Constraint("Vertical", 21, 3, 32, 3))
sketch3.addConstraint(Sketcher.Constraint("Vertical", 26, 3, 33, 3))
sketch3.addConstraint(Sketcher.Constraint("Vertical", 27, 3, 34, 3))
sketch3.addConstraint(Sketcher.Constraint("Vertical", 35, 3, 36, 3))
sketch3.addConstraint(Sketcher.Constraint("Vertical", 36, 3, 37, 3))
sketch3.addConstraint(Sketcher.Constraint("Vertical", 37, 3, 38, 3))
sketch3.addConstraint(Sketcher.Constraint("Vertical", 3, 2, 4, 2))
sketch3.addConstraint(Sketcher.Constraint("Vertical", 2, 2, 5, 2))
sketch3.addConstraint(Sketcher.Constraint("Vertical", 7, 2, 39, 2))
sketch3.addConstraint(Sketcher.Constraint("Vertical", 6, 2, 40, 2))
sketch3.addConstraint(Sketcher.Constraint("Equal", 7, 9))
sketch3.addConstraint(Sketcher.Constraint("Equal", 2, 4))
sketch3.addConstraint(Sketcher.Constraint("Equal", 6, 8))
sketch3.addConstraint(Sketcher.Constraint("Equal", 10, 39))
sketch3.addConstraint(Sketcher.Constraint("Diameter", 12, 2.5))
sketch3.addConstraint(Sketcher.Constraint("DistanceY", 0, 1, 0, 2, 10.0))
sketch3.addConstraint(Sketcher.Constraint("DistanceX", 1, 1, 1, 2, 3.5))
sketch3.addConstraint(Sketcher.Constraint("DistanceX", 12, 3, -1, 1, 182.0))
sketch3.addConstraint(Sketcher.Constraint("DistanceY", -1, 1, 12, 3, 60.0))
sketch3.addConstraint(Sketcher.Constraint("DistanceX", 13, 3, -1, 1, 154.0))
sketch3.addConstraint(Sketcher.Constraint("DistanceX", 14, 3, -1, 1, 126.0))
sketch3.addConstraint(Sketcher.Constraint("DistanceX", 15, 3, -1, 1, 98.0))
sketch3.addConstraint(Sketcher.Constraint("DistanceY", -1, 1, 16, 3, 36.0))
sketch3.addConstraint(Sketcher.Constraint("DistanceY", -1, 1, 19, 3, 12.0))
sketch3.addConstraint(Sketcher.Constraint("DistanceX", 22, 3, -1, 1, 70.0))
sketch3.addConstraint(Sketcher.Constraint("DistanceX", 23, 3, -1, 1, 42.0))
sketch3.addConstraint(Sketcher.Constraint("DistanceY", -1, 1, 30, 3, 84.0))
sketch3.addConstraint(Sketcher.Constraint("DistanceX", 35, 3, -1, 1, 14.0))
sketch3.addConstraint(Sketcher.Constraint("DistanceX", 0, 2, -1, 1, 196.0))
sketch3.addConstraint(Sketcher.Constraint("DistanceY", -1, 1, 0, 2, 65.0))
sketch3.addConstraint(Sketcher.Constraint("DistanceY", -1, 1, 4, 2, 41.0))
sketch3.addConstraint(Sketcher.Constraint("DistanceX", 8, 2, -1, 1, 172.0))
sketch3.addConstraint(Sketcher.Constraint("DistanceY", -1, 1, 8, 2, 89.0))
sketch3.addConstraint(Sketcher.Constraint("DistanceY", -1, 1, 39, 2, 17.0))
pocket2 = body.newObject("PartDesign::Pocket", "Pocket001")
pocket2.Profile = sketch3
pocket2.Type = "ThroughAll"
pocket2.Reversed = True
body2 = doc.addObject("PartDesign::Body", "Body001")
doc.recompute()

mirroring = doc.addObject("Part::Mirroring", "Mirroring")
mirroring.Source = body
mirroring.Base = V(-198, 0, 2.5)
mirroring.Normal = V(0, -1, 0)
body2.BaseFeature = mirroring
doc.recompute()
body3 = doc.addObject("PartDesign::Body", "Body002")
doc.recompute()

mirroring2 = doc.addObject("Part::Mirroring", "Mirroring001")
mirroring2.Source = body
mirroring2.Base = V(0, 36, 3.5)
mirroring2.Normal = V(1, 0, 0)
body3.BaseFeature = mirroring2
doc.recompute()
body4 = doc.addObject("PartDesign::Body", "Body003")
doc.recompute()

mirroring3 = doc.addObject("Part::Mirroring", "Mirroring002")
mirroring3.Source = body2
mirroring3.Base = V(0, 36, 3.5)
mirroring3.Normal = V(1, 0, 0)
body4.BaseFeature = mirroring3
doc.recompute()
mirroring.Visibility = False
mirroring2.Visibility = False
mirroring3.Visibility = False

doc.recompute()
